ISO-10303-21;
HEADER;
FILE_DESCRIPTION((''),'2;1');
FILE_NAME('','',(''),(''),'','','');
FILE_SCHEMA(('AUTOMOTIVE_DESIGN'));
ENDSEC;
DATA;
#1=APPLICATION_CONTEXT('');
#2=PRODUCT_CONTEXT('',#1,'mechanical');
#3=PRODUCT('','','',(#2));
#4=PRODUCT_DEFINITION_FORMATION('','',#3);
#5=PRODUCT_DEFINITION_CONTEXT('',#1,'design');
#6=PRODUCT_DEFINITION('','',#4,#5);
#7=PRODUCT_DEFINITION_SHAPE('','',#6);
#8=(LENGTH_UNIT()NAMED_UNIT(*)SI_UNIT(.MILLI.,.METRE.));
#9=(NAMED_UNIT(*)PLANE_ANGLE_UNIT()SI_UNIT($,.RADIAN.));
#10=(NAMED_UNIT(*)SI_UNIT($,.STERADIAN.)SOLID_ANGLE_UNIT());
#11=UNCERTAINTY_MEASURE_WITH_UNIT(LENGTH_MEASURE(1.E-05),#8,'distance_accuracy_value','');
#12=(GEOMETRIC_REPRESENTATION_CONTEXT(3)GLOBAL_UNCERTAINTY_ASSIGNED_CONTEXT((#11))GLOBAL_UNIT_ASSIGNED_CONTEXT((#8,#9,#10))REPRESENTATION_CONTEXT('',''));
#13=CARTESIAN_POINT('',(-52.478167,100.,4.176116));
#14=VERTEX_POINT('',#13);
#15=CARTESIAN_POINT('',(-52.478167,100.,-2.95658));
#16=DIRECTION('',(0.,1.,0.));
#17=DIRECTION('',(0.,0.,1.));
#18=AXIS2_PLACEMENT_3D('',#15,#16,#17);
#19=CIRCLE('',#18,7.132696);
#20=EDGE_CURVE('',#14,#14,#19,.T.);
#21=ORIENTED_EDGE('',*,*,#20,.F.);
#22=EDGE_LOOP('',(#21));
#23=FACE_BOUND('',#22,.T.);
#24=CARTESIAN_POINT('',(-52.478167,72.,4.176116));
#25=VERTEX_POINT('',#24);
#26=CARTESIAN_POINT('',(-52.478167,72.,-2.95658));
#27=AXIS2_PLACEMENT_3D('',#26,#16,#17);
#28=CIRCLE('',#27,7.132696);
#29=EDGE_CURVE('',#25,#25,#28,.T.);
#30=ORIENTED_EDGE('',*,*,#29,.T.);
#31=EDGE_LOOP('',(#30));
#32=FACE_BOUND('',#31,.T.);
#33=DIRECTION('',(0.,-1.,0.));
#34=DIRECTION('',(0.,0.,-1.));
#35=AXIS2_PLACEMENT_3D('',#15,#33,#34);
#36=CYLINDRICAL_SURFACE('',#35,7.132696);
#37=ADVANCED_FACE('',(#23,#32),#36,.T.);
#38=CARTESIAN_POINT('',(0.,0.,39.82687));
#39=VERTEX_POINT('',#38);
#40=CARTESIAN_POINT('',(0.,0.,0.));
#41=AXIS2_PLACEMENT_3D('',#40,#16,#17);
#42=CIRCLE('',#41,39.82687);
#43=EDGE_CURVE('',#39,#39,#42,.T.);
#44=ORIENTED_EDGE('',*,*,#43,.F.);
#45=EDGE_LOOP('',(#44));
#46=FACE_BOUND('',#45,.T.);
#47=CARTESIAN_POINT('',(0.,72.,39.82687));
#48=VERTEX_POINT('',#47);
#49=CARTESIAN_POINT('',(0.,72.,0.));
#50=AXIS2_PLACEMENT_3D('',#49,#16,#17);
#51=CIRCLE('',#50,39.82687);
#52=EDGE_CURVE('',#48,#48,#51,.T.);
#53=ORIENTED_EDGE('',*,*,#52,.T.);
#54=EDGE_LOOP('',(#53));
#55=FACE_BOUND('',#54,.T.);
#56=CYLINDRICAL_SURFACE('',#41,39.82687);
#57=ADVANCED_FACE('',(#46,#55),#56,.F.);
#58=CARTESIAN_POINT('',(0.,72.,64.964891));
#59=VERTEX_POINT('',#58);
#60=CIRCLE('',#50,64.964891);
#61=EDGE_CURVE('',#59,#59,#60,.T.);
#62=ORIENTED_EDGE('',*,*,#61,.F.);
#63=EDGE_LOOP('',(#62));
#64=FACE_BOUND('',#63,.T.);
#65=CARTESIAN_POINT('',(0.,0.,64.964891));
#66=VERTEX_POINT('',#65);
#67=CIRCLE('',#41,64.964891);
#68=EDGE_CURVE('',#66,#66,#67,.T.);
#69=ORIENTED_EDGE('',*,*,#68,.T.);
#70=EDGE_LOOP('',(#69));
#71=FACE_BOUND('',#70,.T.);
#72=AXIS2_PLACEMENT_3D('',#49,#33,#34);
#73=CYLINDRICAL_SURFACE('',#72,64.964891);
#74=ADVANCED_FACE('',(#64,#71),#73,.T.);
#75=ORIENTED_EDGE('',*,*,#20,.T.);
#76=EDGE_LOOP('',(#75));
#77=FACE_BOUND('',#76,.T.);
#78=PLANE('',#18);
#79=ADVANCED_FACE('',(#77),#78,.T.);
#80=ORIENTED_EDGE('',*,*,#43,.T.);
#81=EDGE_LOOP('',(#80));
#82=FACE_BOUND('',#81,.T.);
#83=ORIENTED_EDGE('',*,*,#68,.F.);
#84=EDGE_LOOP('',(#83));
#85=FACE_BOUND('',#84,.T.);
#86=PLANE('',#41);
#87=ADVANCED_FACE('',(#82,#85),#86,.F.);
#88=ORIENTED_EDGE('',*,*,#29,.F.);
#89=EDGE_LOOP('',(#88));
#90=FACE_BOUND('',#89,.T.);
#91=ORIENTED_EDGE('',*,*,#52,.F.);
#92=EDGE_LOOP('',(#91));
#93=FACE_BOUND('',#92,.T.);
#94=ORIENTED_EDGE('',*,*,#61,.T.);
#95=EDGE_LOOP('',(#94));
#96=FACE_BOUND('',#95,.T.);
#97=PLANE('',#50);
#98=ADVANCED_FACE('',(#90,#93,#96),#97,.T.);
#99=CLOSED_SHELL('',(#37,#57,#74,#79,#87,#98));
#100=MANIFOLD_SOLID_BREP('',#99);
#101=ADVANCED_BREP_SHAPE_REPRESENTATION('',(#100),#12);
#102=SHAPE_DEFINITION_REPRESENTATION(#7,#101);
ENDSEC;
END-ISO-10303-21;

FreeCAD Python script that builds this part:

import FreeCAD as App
import Part
import Sketcher
from FreeCAD import Vector
Q = App.Units.Quantity

doc = App.newDocument("Part")
params = doc.addObject("Spreadsheet::Sheet", "Params")
for row, (alias, value) in enumerate([
    ("pad1_length", "72 mm"),
    ("pocket1_length", "72 mm"),
    ("pad2_length", "28 mm"),
], start=1):
    params.set(f"A{row}", alias)
    params.set(f"B{row}", "=" + value)
    params.setAlias(f"B{row}", alias)

body = doc.addObject("PartDesign::Body", "Body")

sketch1 = doc.addObject("Sketcher::SketchObject", "Sketch")
body.addObject(sketch1)
sketch1.AttachmentSupport = (doc.XZ_Plane, [""])
sketch1.MapMode = "FlatFace"
sketch1.addGeometry(Part.Circle(Vector(0, 0, 0), Vector(0, 0, 1), 65), False)
sketch1.addConstraint(Sketcher.Constraint("Coincident", 0, 3, -1, 1))
sketch1.addConstraint(Sketcher.Constraint("Diameter", 0, Q("129.929782 mm")))
pad1 = doc.addObject("PartDesign::Pad", "Pad")
body.addObject(pad1)
pad1.Profile = sketch1
pad1.setExpression("Length", "Params.pad1_length")
pad1.Reversed = True

sketch2 = doc.addObject("Sketcher::SketchObject", "Sketch001")
body.addObject(sketch2)
sketch2.AttachmentSupport = (doc.XZ_Plane, [""])
sketch2.MapMode = "FlatFace"
sketch2.AttachmentOffset = App.Placement(Vector(0, 0, -72), App.Rotation())
sketch2.addGeometry(Part.Circle(Vector(0, 0, 0), Vector(0, 0, 1), 40), False)
sketch2.addConstraint(Sketcher.Constraint("Coincident", 0, 3, -1, 1))
sketch2.addConstraint(Sketcher.Constraint("Diameter", 0, Q("79.65374 mm")))
pocket1 = doc.addObject("PartDesign::Pocket", "Pocket")
body.addObject(pocket1)
pocket1.Profile = sketch2
pocket1.setExpression("Length", "Params.pocket1_length")
pocket1.Reversed = True

sketch3 = doc.addObject("Sketcher::SketchObject", "Sketch002")
body.addObject(sketch3)
sketch3.AttachmentSupport = (doc.XZ_Plane, [""])
sketch3.MapMode = "FlatFace"
sketch3.AttachmentOffset = App.Placement(Vector(0, 0, -72), App.Rotation())
sketch3.addGeometry(Part.Circle(Vector(-52, -3, 0), Vector(0, 0, 1), 7), False)
sketch3.addConstraint(Sketcher.Constraint("Diameter", 0, Q("14.265391 mm")))
sketch3.addConstraint(Sketcher.Constraint("DistanceY", 0, 3, -1, 1, Q("2.95658 mm")))
sketch3.addConstraint(Sketcher.Constraint("DistanceX", 0, 3, -1, 1, Q("52.478167 mm")))
pad2 = doc.addObject("PartDesign::Pad", "Pad001")
body.addObject(pad2)
pad2.Profile = sketch3
pad2.setExpression("Length", "Params.pad2_length")
pad2.Reversed = True

doc.recompute()
